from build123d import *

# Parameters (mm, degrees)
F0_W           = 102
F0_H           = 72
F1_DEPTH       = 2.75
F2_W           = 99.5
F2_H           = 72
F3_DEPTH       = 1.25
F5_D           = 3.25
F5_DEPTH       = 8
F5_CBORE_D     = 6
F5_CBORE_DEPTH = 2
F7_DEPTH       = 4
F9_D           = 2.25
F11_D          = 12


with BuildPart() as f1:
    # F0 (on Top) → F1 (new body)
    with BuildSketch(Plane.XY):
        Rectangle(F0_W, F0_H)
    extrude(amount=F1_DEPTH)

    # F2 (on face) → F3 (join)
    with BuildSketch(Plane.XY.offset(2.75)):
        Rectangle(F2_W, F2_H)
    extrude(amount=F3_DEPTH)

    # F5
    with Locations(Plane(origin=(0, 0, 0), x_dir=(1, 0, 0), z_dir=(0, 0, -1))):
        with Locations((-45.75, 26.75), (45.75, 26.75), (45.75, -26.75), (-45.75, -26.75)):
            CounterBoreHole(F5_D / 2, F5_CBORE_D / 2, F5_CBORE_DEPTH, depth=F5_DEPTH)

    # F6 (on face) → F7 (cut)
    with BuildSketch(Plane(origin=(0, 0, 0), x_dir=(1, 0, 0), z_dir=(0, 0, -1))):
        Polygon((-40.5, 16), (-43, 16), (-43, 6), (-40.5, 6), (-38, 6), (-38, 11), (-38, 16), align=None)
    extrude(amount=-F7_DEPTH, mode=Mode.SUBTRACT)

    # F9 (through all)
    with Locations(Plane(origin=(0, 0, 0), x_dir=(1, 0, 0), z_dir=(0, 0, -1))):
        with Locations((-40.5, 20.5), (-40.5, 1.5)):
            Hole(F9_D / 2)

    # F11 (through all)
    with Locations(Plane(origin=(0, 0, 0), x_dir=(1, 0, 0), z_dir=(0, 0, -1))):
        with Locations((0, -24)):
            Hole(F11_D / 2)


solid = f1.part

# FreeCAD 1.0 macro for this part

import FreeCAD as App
import Part
import Sketcher
from FreeCAD import Vector

doc = App.newDocument("Part")
body = doc.addObject("PartDesign::Body", "Body")

# Sketch on XY plane
sketch1 = body.newObject("Sketcher::SketchObject", "Sketch")
sketch1.AttachmentSupport = (doc.getObject("XY_Plane"), [""])
sketch1.MapMode = "FlatFace"
sketch1.addGeometry([
    Part.LineSegment(Vector(-51, 36, 0), Vector(-51, -36, 0)),
    Part.LineSegment(Vector(-51, -36, 0), Vector(51, -36, 0)),
    Part.LineSegment(Vector(51, -36, 0), Vector(51, 36, 0)),
    Part.LineSegment(Vector(51, 36, 0), Vector(-51, 36, 0)),
], False)
sketch1.addConstraint([
    Sketcher.Constraint("Coincident", 0, 2, 1, 1),
    Sketcher.Constraint("Coincident", 1, 2, 2, 1),
    Sketcher.Constraint("Coincident", 2, 2, 3, 1),
    Sketcher.Constraint("Coincident", 3, 2, 0, 1),
    Sketcher.Constraint("Vertical", 0),
    Sketcher.Constraint("Horizontal", 1),
    Sketcher.Constraint("Vertical", 2),
    Sketcher.Constraint("Horizontal", 3),
    Sketcher.Constraint("Symmetric", 0, 2, 2, 2, -1, 1),
    Sketcher.Constraint("DistanceX", 1, 1, 1, 2, 102.0),
    Sketcher.Constraint("DistanceY", 0, 2, 0, 1, 72.0),
])
pad1 = body.newObject("PartDesign::Pad", "Pad")
pad1.Profile = sketch1
pad1.Length = 2.75

# Sketch on XY plane
sketch2 = body.newObject("Sketcher::SketchObject", "Sketch001")
sketch2.AttachmentSupport = (doc.getObject("XY_Plane"), [""])
sketch2.MapMode = "FlatFace"
sketch2.AttachmentOffset = App.Placement(Vector(0, 0, 2.75), App.Rotation())
sketch2.addGeometry([
    Part.LineSegment(Vector(-50, 36, 0), Vector(-50, -36, 0)),
    Part.LineSegment(Vector(-50, -36, 0), Vector(50, -36, 0)),
    Part.LineSegment(Vector(50, -36, 0), Vector(50, 36, 0)),
    Part.LineSegment(Vector(50, 36, 0), Vector(-50, 36, 0)),
], False)
sketch2.addConstraint([
    Sketcher.Constraint("Coincident", 0, 2, 1, 1),
    Sketcher.Constraint("Coincident", 1, 2, 2, 1),
    Sketcher.Constraint("Coincident", 2, 2, 3, 1),
    Sketcher.Constraint("Coincident", 3, 2, 0, 1),
    Sketcher.Constraint("Vertical", 0),
    Sketcher.Constraint("Horizontal", 1),
    Sketcher.Constraint("Vertical", 2),
    Sketcher.Constraint("Horizontal", 3),
    Sketcher.Constraint("Symmetric", 0, 2, 2, 2, -1, 1),
    Sketcher.Constraint("DistanceY", 0, 2, 0, 1, 72.0),
    Sketcher.Constraint("DistanceX", 1, 1, 1, 2, 99.5),
])
pad2 = body.newObject("PartDesign::Pad", "Pad001")
pad2.Profile = sketch2
pad2.Length = 1.25

# Sketch on XY plane
sketch3 = body.newObject("Sketcher::SketchObject", "Sketch002")
sketch3.AttachmentSupport = (doc.getObject("XY_Plane"), [""])
sketch3.MapMode = "FlatFace"
sketch3.addGeometry([
    Part.Circle(Vector(-45.8, -26.8, 0), Vector(0, 0, 1), 1.6),
    Part.Circle(Vector(45.8, -26.8, 0), Vector(0, 0, 1), 1.6),
    Part.Circle(Vector(45.8, 26.8, 0), Vector(0, 0, 1), 1.6),
    Part.Circle(Vector(-45.8, 26.8, 0), Vector(0, 0, 1), 1.6),
], False)
sketch3.addConstraint([
    Sketcher.Constraint("Equal", 0, 1),
    Sketcher.Constraint("Equal", 1, 2),
    Sketcher.Constraint("Equal", 2, 3),
    Sketcher.Constraint("Symmetric", 0, 3, 2, 3, -1, 1),
    Sketcher.Constraint("Symmetric", 1, 3, 3, 3, -1, 1),
    Sketcher.Constraint("Symmetric", 0, 3, 1, 3, -2),
    Sketcher.Constraint("Diameter", 0, 3.25),
    Sketcher.Constraint("DistanceX", 0, 3, 1, 3, 91.5),
    Sketcher.Constraint("DistanceY", 1, 3, 2, 3, 53.5),
])
doc.recompute()
hole = body.newObject("PartDesign::Hole", "Hole")
hole.Profile = sketch3
hole.ThreadType = "None"
hole.Diameter = 3.25
hole.DepthType = "Dimension"
hole.Depth = 8
hole.DrillPoint = "Flat"
hole.HoleCutType = "Counterbore"
hole.HoleCutDiameter = 6
hole.HoleCutDepth = 2
hole.Reversed = True

# Sketch on XY plane
sketch4 = body.newObject("Sketcher::SketchObject", "Sketch003")
sketch4.AttachmentSupport = (doc.getObject("XY_Plane"), [""])
sketch4.MapMode = "FlatFace"
sketch4.addGeometry([
    Part.LineSegment(Vector(-43, -16, 0), Vector(-43, -6, 0)),
    Part.LineSegment(Vector(-43, -6, 0), Vector(-38, -6, 0)),
    Part.LineSegment(Vector(-38, -6, 0), Vector(-38, -16, 0)),
    Part.LineSegment(Vector(-38, -16, 0), Vector(-43, -16, 0)),
], False)
sketch4.addConstraint([
    Sketcher.Constraint("Coincident", 0, 2, 1, 1),
    Sketcher.Constraint("Coincident", 1, 2, 2, 1),
    Sketcher.Constraint("Coincident", 2, 2, 3, 1),
    Sketcher.Constraint("Coincident", 3, 2, 0, 1),
    Sketcher.Constraint("Vertical", 0),
    Sketcher.Constraint("Horizontal", 1),
    Sketcher.Constraint("Vertical", 2),
    Sketcher.Constraint("Horizontal", 3),
    Sketcher.Constraint("DistanceX", 1, 1, 1, 2, 5.0),
    Sketcher.Constraint("DistanceY", 0, 1, 0, 2, 10.0),
    Sketcher.Constraint("DistanceX", 0, 2, -1, 1, 43.0),
    Sketcher.Constraint("DistanceY", 0, 2, -1, 1, 6.0),
])
pocket1 = body.newObject("PartDesign::Pocket", "Pocket")
pocket1.Profile = sketch4
pocket1.Length = 4
pocket1.Reversed = True

# Sketch on XY plane
sketch5 = body.newObject("Sketcher::SketchObject", "Sketch004")
sketch5.AttachmentSupport = (doc.getObject("XY_Plane"), [""])
sketch5.MapMode = "FlatFace"
sketch5.addGeometry([
    Part.Circle(Vector(-40.5, -20.5, 0), Vector(0, 0, 1), 1.1),
    Part.Circle(Vector(-40.5, -1.5, 0), Vector(0, 0, 1), 1.1),
], False)
sketch5.addConstraint([
    Sketcher.Constraint("Equal", 0, 1),
    Sketcher.Constraint("Vertical", 0, 3, 1, 3),
    Sketcher.Constraint("Diameter", 0, 2.25),
    Sketcher.Constraint("DistanceY", 0, 3, 1, 3, 19.0),
    Sketcher.Constraint("DistanceX", 0, 3, -1, 1, 40.5),
    Sketcher.Constraint("DistanceY", 0, 3, -1, 1, 20.5),
])
doc.recompute()
hole2 = body.newObject("PartDesign::Hole", "Hole001")
hole2.Profile = sketch5
hole2.ThreadType = "None"
hole2.Diameter = 2.25
hole2.DepthType = "ThroughAll"
hole2.Reversed = True

# Sketch on XY plane
sketch6 = body.newObject("Sketcher::SketchObject", "Sketch005")
sketch6.AttachmentSupport = (doc.getObject("XY_Plane"), [""])
sketch6.MapMode = "FlatFace"
sketch6.addGeometry(Part.Circle(Vector(0, 24, 0), Vector(0, 0, 1), 6), False)
sketch6.addConstraint([
    Sketcher.Constraint("PointOnObject", 0, 3, -2),
    Sketcher.Constraint("Diameter", 0, 12.0),
    Sketcher.Constraint("DistanceY", -1, 1, 0, 3, 24.0),
])
doc.recompute()
hole3 = body.newObject("PartDesign::Hole", "Hole002")
hole3.Profile = sketch6
hole3.ThreadType = "None"
hole3.Diameter = 12
hole3.DepthType = "ThroughAll"
hole3.Reversed = True

doc.recompute()
